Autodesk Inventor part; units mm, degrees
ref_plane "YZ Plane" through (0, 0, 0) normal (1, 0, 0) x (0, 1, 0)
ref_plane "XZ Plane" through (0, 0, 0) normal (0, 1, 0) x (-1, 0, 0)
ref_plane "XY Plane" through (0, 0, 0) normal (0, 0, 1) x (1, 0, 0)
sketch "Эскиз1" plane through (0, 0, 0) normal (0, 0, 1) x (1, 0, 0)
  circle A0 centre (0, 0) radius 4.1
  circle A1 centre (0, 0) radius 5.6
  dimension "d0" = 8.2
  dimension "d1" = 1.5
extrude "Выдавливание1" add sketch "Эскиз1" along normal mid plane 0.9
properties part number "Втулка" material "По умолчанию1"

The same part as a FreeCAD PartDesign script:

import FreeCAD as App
import Part
import Sketcher

V = App.Vector
Q = App.Units.Quantity

doc = App.newDocument("Part")
params = doc.addObject("Spreadsheet::Sheet", "Params")
for row, (alias, value) in enumerate([
    ("sketch1_diameter", "8.2 mm"),
    ("sketch1_diameter2", "11.2 mm"),
    ("pad1_length", "0.9 mm"),
], start=1):
    params.set(f"A{row}", alias)
    params.set(f"B{row}", "=" + value)
    params.setAlias(f"B{row}", alias)

body = doc.addObject("PartDesign::Body", "Body")

# Sketch on XY plane
sketch1 = body.newObject("Sketcher::SketchObject", "Sketch")
sketch1.AttachmentSupport = (doc.getObject("XY_Plane"), [""])
sketch1.MapMode = "FlatFace"
sketch1.addGeometry(Part.Circle(V(0, 0, 0), V(0, 0, 1), 5.6), False)
sketch1.addGeometry(Part.Circle(V(0, 0, 0), V(0, 0, 1), 4.1), False)
sketch1.addConstraint(Sketcher.Constraint("Coincident", 0, 3, -1, 1))
sketch1.addConstraint(Sketcher.Constraint("Coincident", 1, 3, -1, 1))
sketch1.addConstraint(Sketcher.Constraint("Diameter", 1, Q("8.2 mm")))
sketch1.addConstraint(Sketcher.Constraint("Diameter", 0, Q("11.2 mm")))
sketch1.setExpression("Constraints[2]", "Params.sketch1_diameter")
sketch1.setExpression("Constraints[3]", "Params.sketch1_diameter2")
pad1 = body.newObject("PartDesign::Pad", "Pad")
pad1.Profile = sketch1
pad1.setExpression("Length", "Params.pad1_length")
pad1.Midplane = True

doc.recompute()
